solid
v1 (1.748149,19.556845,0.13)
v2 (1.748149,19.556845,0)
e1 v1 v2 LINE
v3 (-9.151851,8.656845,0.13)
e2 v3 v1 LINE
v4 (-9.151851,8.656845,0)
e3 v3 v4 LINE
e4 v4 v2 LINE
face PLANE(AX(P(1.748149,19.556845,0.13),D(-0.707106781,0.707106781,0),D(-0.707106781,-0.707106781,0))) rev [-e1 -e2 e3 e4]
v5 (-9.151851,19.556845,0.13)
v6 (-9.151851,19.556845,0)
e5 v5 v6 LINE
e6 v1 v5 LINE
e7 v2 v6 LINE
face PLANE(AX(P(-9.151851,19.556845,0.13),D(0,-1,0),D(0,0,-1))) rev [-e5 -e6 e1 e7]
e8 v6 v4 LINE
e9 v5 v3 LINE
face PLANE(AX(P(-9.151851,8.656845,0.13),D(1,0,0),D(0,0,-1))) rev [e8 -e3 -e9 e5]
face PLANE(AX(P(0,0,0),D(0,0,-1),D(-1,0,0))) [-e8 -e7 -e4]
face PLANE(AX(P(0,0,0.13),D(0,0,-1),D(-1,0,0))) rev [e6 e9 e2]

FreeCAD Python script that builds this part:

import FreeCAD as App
import Part
import Sketcher

V = App.Vector


def add_polygon(sketch, points):
    """Adds a closed chain of lines whose ends are joined by coincident constraints."""
    first, n = sketch.GeometryCount, len(points)
    for a, b in zip(points, points[1:] + points[:1]):
        sketch.addGeometry(Part.LineSegment(App.Vector(*a, 0), App.Vector(*b, 0)), False)
    for i in range(n):
        sketch.addConstraint(Sketcher.Constraint("Coincident", first + i, 2, first + (i + 1) % n, 1))

doc = App.newDocument("Part")
body = doc.addObject("PartDesign::Body", "Body")

# Sketch on XY plane
sketch1 = body.newObject("Sketcher::SketchObject", "Sketch")
sketch1.AttachmentSupport = (doc.getObject("XY_Plane"), [""])
sketch1.MapMode = "FlatFace"
add_polygon(sketch1, [(2, 20), (-9, 20), (-9, 9)])  # lines 0-2
sketch1.addConstraint([
    Sketcher.Constraint("Horizontal", 0),
    Sketcher.Constraint("Vertical", 1),
    Sketcher.Constraint("Equal", 0, 1),
    Sketcher.Constraint("DistanceX", 0, 2, 0, 1, 10.9),
    Sketcher.Constraint("DistanceX", 0, 2, -1, 1, 9.151851),
    Sketcher.Constraint("DistanceY", -1, 1, 0, 2, 19.556845),
])
pad1 = body.newObject("PartDesign::Pad", "Pad")
pad1.Profile = sketch1
pad1.Length = 0.13

doc.recompute()
